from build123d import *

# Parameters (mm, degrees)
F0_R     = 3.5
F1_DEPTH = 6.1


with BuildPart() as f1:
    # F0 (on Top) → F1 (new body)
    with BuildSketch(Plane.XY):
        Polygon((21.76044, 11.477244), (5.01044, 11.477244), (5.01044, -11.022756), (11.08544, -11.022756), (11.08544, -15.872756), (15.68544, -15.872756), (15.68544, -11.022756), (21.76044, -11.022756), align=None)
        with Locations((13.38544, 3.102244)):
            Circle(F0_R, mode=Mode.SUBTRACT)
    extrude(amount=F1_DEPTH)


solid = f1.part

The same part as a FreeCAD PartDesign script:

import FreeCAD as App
import Part
import Sketcher

V = App.Vector

doc = App.newDocument("Part")
params = doc.addObject("Spreadsheet::Sheet", "Params")
for row, (alias, value) in enumerate([
    ("sketch1_diameter", "7 mm"),
    ("sketch1_width", "4.6 mm"),
    ("sketch1_height", "22.5 mm"),
    ("sketch1_width2", "16.75 mm"),
    ("sketch1_height2", "4.85 mm"),
    ("pad1_length", "6.1 mm"),
], start=1):
    params.set(f"A{row}", alias)
    params.set(f"B{row}", "=" + value)
    params.setAlias(f"B{row}", alias)

body = doc.addObject("PartDesign::Body", "Body")

# Sketch on XY plane
sketch1 = body.newObject("Sketcher::SketchObject", "Sketch")
sketch1.AttachmentSupport = (doc.getObject("XY_Plane"), [""])
sketch1.MapMode = "FlatFace"
sketch1.addGeometry(Part.LineSegment(V(21.8, 11.5, 0), V(5, 11.5, 0)), False)
sketch1.addGeometry(Part.LineSegment(V(5, 11.5, 0), V(5, -11, 0)), False)
sketch1.addGeometry(Part.LineSegment(V(5, -11, 0), V(11.1, -11, 0)), False)
sketch1.addGeometry(Part.LineSegment(V(11.1, -11, 0), V(11.1, -15.9, 0)), False)
sketch1.addGeometry(Part.LineSegment(V(11.1, -15.9, 0), V(15.7, -15.9, 0)), False)
sketch1.addGeometry(Part.LineSegment(V(15.7, -15.9, 0), V(15.7, -11, 0)), False)
sketch1.addGeometry(Part.LineSegment(V(15.7, -11, 0), V(21.8, -11, 0)), False)
sketch1.addGeometry(Part.LineSegment(V(21.8, -11, 0), V(21.8, 11.5, 0)), False)
sketch1.addGeometry(Part.Circle(V(13.4, 3.1, 0), V(0, 0, 1), 3.5), False)
sketch1.addConstraint(Sketcher.Constraint("Coincident", 0, 2, 1, 1))
sketch1.addConstraint(Sketcher.Constraint("Coincident", 1, 2, 2, 1))
sketch1.addConstraint(Sketcher.Constraint("Coincident", 2, 2, 3, 1))
sketch1.addConstraint(Sketcher.Constraint("Coincident", 3, 2, 4, 1))
sketch1.addConstraint(Sketcher.Constraint("Coincident", 4, 2, 5, 1))
sketch1.addConstraint(Sketcher.Constraint("Coincident", 5, 2, 6, 1))
sketch1.addConstraint(Sketcher.Constraint("Coincident", 6, 2, 7, 1))
sketch1.addConstraint(Sketcher.Constraint("Coincident", 7, 2, 0, 1))
sketch1.addConstraint(Sketcher.Constraint("Horizontal", 0))
sketch1.addConstraint(Sketcher.Constraint("Vertical", 1))
sketch1.addConstraint(Sketcher.Constraint("Horizontal", 2))
sketch1.addConstraint(Sketcher.Constraint("Vertical", 3))
sketch1.addConstraint(Sketcher.Constraint("Horizontal", 4))
sketch1.addConstraint(Sketcher.Constraint("Vertical", 5))
sketch1.addConstraint(Sketcher.Constraint("Horizontal", 6))
sketch1.addConstraint(Sketcher.Constraint("Vertical", 7))
sketch1.addConstraint(Sketcher.Constraint("Horizontal", 2, 2, 5, 2))
sketch1.addConstraint(Sketcher.Constraint("Equal", 2, 6))
sketch1.addConstraint(Sketcher.Constraint("Diameter", 8, 7.0))
sketch1.addConstraint(Sketcher.Constraint("DistanceX", 4, 1, 4, 2, 4.6))
sketch1.addConstraint(Sketcher.Constraint("DistanceY", 1, 2, 1, 1, 22.5))
sketch1.addConstraint(Sketcher.Constraint("DistanceX", 0, 2, 0, 1, 16.75))
sketch1.addConstraint(Sketcher.Constraint("DistanceY", 3, 2, 3, 1, 4.85))
sketch1.addConstraint(Sketcher.Constraint("DistanceX", 2, 2, 8, 3, 2.3))
sketch1.addConstraint(Sketcher.Constraint("DistanceY", 8, 3, 0, 2, 8.375))
sketch1.addConstraint(Sketcher.Constraint("DistanceX", -1, 1, 8, 3, 13.38544))
sketch1.addConstraint(Sketcher.Constraint("DistanceY", -1, 1, 8, 3, 3.102244))
sketch1.setExpression("Constraints[18]", "Params.sketch1_diameter")
sketch1.setExpression("Constraints[19]", "Params.sketch1_width")
sketch1.setExpression("Constraints[20]", "Params.sketch1_height")
sketch1.setExpression("Constraints[21]", "Params.sketch1_width2")
sketch1.setExpression("Constraints[22]", "Params.sketch1_height2")
pad1 = body.newObject("PartDesign::Pad", "Pad")
pad1.Profile = sketch1
pad1.setExpression("Length", "Params.pad1_length")

doc.recompute()
